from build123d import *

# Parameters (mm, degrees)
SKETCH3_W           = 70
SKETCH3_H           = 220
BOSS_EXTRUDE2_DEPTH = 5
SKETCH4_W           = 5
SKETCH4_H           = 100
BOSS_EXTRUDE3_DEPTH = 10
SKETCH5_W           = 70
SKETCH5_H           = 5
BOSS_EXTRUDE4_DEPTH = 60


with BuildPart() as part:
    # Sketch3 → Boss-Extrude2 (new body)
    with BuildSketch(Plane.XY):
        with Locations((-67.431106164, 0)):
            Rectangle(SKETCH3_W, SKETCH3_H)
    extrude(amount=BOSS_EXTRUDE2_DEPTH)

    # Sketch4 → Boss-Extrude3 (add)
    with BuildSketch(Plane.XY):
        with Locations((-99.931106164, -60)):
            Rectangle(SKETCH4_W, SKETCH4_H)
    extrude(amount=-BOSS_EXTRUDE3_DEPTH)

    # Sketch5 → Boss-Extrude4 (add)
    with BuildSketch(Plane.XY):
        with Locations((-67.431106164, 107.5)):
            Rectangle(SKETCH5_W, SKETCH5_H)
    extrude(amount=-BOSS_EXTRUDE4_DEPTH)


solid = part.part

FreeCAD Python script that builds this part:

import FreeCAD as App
import Part
import Sketcher

V = App.Vector
Q = App.Units.Quantity


def add_polygon(sketch, points):
    """Adds a closed chain of lines whose ends are joined by coincident constraints."""
    first, n = sketch.GeometryCount, len(points)
    for a, b in zip(points, points[1:] + points[:1]):
        sketch.addGeometry(Part.LineSegment(App.Vector(*a, 0), App.Vector(*b, 0)), False)
    for i in range(n):
        sketch.addConstraint(Sketcher.Constraint("Coincident", first + i, 2, first + (i + 1) % n, 1))

doc = App.newDocument("Part")
params = doc.addObject("Spreadsheet::Sheet", "Params")
for row, (alias, value) in enumerate([
    ("sketch1_width", "70 mm"),
    ("sketch1_height", "220 mm"),
    ("pad1_length", "5 mm"),
    ("sketch2_width", "5 mm"),
    ("sketch2_height", "100 mm"),
    ("pad2_length", "10 mm"),
    ("sketch3_width", "70 mm"),
    ("sketch3_height", "5 mm"),
    ("pad3_length", "60 mm"),
], start=1):
    params.set(f"A{row}", alias)
    params.set(f"B{row}", "=" + value)
    params.setAlias(f"B{row}", alias)

body = doc.addObject("PartDesign::Body", "Body")

# Sketch on XY plane
sketch1 = doc.addObject("Sketcher::SketchObject", "Sketch")
body.addObject(sketch1)
sketch1.AttachmentSupport = (doc.XY_Plane, [""])
sketch1.MapMode = "FlatFace"
add_polygon(sketch1, [(-102, 110), (-102, -110), (-32, -110), (-32, 110)])  # lines 0-3
sketch1.addConstraint([
    Sketcher.Constraint("Vertical", 0),
    Sketcher.Constraint("Horizontal", 1),
    Sketcher.Constraint("Vertical", 2),
    Sketcher.Constraint("Horizontal", 3),
    Sketcher.Constraint("DistanceX", 1, 1, 1, 2, Q("70 mm")),
    Sketcher.Constraint("DistanceY", 0, 2, 0, 1, Q("220 mm")),
    Sketcher.Constraint("DistanceY", 0, 2, -1, 1, Q("110 mm")),
    Sketcher.Constraint("DistanceX", 0, 2, -1, 1, Q("102.431106 mm")),
])
sketch1.setExpression("Constraints[8]", "Params.sketch1_width")
sketch1.setExpression("Constraints[9]", "Params.sketch1_height")
pad1 = doc.addObject("PartDesign::Pad", "Pad")
body.addObject(pad1)
pad1.Profile = sketch1
pad1.setExpression("Length", "Params.pad1_length")

# Sketch on XY plane
sketch2 = doc.addObject("Sketcher::SketchObject", "Sketch001")
body.addObject(sketch2)
sketch2.AttachmentSupport = (doc.XY_Plane, [""])
sketch2.MapMode = "FlatFace"
add_polygon(sketch2, [(-102, -10), (-102, -110), (-97, -110), (-97, -10)])  # lines 0-3
sketch2.addConstraint([
    Sketcher.Constraint("Vertical", 0),
    Sketcher.Constraint("Horizontal", 1),
    Sketcher.Constraint("Vertical", 2),
    Sketcher.Constraint("Horizontal", 3),
    Sketcher.Constraint("DistanceX", 1, 1, 1, 2, Q("5 mm")),
    Sketcher.Constraint("DistanceY", 0, 2, 0, 1, Q("100 mm")),
    Sketcher.Constraint("DistanceY", 0, 2, -1, 1, Q("110 mm")),
    Sketcher.Constraint("DistanceX", 0, 2, -1, 1, Q("102.431106 mm")),
])
sketch2.setExpression("Constraints[8]", "Params.sketch2_width")
sketch2.setExpression("Constraints[9]", "Params.sketch2_height")
pad2 = doc.addObject("PartDesign::Pad", "Pad001")
body.addObject(pad2)
pad2.Profile = sketch2
pad2.setExpression("Length", "Params.pad2_length")
pad2.Reversed = True

# Sketch on XY plane
sketch3 = doc.addObject("Sketcher::SketchObject", "Sketch002")
body.addObject(sketch3)
sketch3.AttachmentSupport = (doc.XY_Plane, [""])
sketch3.MapMode = "FlatFace"
add_polygon(sketch3, [(-102, 110), (-102, 105), (-32, 105), (-32, 110)])  # lines 0-3
sketch3.addConstraint([
    Sketcher.Constraint("Vertical", 0),
    Sketcher.Constraint("Horizontal", 1),
    Sketcher.Constraint("Vertical", 2),
    Sketcher.Constraint("Horizontal", 3),
    Sketcher.Constraint("DistanceX", 1, 1, 1, 2, Q("70 mm")),
    Sketcher.Constraint("DistanceY", 0, 2, 0, 1, Q("5 mm")),
    Sketcher.Constraint("DistanceY", -1, 1, 0, 2, Q("105 mm")),
    Sketcher.Constraint("DistanceX", 0, 2, -1, 1, Q("102.431106 mm")),
])
sketch3.setExpression("Constraints[8]", "Params.sketch3_width")
sketch3.setExpression("Constraints[9]", "Params.sketch3_height")
pad3 = doc.addObject("PartDesign::Pad", "Pad002")
body.addObject(pad3)
pad3.Profile = sketch3
pad3.setExpression("Length", "Params.pad3_length")
pad3.Reversed = True

doc.recompute()
